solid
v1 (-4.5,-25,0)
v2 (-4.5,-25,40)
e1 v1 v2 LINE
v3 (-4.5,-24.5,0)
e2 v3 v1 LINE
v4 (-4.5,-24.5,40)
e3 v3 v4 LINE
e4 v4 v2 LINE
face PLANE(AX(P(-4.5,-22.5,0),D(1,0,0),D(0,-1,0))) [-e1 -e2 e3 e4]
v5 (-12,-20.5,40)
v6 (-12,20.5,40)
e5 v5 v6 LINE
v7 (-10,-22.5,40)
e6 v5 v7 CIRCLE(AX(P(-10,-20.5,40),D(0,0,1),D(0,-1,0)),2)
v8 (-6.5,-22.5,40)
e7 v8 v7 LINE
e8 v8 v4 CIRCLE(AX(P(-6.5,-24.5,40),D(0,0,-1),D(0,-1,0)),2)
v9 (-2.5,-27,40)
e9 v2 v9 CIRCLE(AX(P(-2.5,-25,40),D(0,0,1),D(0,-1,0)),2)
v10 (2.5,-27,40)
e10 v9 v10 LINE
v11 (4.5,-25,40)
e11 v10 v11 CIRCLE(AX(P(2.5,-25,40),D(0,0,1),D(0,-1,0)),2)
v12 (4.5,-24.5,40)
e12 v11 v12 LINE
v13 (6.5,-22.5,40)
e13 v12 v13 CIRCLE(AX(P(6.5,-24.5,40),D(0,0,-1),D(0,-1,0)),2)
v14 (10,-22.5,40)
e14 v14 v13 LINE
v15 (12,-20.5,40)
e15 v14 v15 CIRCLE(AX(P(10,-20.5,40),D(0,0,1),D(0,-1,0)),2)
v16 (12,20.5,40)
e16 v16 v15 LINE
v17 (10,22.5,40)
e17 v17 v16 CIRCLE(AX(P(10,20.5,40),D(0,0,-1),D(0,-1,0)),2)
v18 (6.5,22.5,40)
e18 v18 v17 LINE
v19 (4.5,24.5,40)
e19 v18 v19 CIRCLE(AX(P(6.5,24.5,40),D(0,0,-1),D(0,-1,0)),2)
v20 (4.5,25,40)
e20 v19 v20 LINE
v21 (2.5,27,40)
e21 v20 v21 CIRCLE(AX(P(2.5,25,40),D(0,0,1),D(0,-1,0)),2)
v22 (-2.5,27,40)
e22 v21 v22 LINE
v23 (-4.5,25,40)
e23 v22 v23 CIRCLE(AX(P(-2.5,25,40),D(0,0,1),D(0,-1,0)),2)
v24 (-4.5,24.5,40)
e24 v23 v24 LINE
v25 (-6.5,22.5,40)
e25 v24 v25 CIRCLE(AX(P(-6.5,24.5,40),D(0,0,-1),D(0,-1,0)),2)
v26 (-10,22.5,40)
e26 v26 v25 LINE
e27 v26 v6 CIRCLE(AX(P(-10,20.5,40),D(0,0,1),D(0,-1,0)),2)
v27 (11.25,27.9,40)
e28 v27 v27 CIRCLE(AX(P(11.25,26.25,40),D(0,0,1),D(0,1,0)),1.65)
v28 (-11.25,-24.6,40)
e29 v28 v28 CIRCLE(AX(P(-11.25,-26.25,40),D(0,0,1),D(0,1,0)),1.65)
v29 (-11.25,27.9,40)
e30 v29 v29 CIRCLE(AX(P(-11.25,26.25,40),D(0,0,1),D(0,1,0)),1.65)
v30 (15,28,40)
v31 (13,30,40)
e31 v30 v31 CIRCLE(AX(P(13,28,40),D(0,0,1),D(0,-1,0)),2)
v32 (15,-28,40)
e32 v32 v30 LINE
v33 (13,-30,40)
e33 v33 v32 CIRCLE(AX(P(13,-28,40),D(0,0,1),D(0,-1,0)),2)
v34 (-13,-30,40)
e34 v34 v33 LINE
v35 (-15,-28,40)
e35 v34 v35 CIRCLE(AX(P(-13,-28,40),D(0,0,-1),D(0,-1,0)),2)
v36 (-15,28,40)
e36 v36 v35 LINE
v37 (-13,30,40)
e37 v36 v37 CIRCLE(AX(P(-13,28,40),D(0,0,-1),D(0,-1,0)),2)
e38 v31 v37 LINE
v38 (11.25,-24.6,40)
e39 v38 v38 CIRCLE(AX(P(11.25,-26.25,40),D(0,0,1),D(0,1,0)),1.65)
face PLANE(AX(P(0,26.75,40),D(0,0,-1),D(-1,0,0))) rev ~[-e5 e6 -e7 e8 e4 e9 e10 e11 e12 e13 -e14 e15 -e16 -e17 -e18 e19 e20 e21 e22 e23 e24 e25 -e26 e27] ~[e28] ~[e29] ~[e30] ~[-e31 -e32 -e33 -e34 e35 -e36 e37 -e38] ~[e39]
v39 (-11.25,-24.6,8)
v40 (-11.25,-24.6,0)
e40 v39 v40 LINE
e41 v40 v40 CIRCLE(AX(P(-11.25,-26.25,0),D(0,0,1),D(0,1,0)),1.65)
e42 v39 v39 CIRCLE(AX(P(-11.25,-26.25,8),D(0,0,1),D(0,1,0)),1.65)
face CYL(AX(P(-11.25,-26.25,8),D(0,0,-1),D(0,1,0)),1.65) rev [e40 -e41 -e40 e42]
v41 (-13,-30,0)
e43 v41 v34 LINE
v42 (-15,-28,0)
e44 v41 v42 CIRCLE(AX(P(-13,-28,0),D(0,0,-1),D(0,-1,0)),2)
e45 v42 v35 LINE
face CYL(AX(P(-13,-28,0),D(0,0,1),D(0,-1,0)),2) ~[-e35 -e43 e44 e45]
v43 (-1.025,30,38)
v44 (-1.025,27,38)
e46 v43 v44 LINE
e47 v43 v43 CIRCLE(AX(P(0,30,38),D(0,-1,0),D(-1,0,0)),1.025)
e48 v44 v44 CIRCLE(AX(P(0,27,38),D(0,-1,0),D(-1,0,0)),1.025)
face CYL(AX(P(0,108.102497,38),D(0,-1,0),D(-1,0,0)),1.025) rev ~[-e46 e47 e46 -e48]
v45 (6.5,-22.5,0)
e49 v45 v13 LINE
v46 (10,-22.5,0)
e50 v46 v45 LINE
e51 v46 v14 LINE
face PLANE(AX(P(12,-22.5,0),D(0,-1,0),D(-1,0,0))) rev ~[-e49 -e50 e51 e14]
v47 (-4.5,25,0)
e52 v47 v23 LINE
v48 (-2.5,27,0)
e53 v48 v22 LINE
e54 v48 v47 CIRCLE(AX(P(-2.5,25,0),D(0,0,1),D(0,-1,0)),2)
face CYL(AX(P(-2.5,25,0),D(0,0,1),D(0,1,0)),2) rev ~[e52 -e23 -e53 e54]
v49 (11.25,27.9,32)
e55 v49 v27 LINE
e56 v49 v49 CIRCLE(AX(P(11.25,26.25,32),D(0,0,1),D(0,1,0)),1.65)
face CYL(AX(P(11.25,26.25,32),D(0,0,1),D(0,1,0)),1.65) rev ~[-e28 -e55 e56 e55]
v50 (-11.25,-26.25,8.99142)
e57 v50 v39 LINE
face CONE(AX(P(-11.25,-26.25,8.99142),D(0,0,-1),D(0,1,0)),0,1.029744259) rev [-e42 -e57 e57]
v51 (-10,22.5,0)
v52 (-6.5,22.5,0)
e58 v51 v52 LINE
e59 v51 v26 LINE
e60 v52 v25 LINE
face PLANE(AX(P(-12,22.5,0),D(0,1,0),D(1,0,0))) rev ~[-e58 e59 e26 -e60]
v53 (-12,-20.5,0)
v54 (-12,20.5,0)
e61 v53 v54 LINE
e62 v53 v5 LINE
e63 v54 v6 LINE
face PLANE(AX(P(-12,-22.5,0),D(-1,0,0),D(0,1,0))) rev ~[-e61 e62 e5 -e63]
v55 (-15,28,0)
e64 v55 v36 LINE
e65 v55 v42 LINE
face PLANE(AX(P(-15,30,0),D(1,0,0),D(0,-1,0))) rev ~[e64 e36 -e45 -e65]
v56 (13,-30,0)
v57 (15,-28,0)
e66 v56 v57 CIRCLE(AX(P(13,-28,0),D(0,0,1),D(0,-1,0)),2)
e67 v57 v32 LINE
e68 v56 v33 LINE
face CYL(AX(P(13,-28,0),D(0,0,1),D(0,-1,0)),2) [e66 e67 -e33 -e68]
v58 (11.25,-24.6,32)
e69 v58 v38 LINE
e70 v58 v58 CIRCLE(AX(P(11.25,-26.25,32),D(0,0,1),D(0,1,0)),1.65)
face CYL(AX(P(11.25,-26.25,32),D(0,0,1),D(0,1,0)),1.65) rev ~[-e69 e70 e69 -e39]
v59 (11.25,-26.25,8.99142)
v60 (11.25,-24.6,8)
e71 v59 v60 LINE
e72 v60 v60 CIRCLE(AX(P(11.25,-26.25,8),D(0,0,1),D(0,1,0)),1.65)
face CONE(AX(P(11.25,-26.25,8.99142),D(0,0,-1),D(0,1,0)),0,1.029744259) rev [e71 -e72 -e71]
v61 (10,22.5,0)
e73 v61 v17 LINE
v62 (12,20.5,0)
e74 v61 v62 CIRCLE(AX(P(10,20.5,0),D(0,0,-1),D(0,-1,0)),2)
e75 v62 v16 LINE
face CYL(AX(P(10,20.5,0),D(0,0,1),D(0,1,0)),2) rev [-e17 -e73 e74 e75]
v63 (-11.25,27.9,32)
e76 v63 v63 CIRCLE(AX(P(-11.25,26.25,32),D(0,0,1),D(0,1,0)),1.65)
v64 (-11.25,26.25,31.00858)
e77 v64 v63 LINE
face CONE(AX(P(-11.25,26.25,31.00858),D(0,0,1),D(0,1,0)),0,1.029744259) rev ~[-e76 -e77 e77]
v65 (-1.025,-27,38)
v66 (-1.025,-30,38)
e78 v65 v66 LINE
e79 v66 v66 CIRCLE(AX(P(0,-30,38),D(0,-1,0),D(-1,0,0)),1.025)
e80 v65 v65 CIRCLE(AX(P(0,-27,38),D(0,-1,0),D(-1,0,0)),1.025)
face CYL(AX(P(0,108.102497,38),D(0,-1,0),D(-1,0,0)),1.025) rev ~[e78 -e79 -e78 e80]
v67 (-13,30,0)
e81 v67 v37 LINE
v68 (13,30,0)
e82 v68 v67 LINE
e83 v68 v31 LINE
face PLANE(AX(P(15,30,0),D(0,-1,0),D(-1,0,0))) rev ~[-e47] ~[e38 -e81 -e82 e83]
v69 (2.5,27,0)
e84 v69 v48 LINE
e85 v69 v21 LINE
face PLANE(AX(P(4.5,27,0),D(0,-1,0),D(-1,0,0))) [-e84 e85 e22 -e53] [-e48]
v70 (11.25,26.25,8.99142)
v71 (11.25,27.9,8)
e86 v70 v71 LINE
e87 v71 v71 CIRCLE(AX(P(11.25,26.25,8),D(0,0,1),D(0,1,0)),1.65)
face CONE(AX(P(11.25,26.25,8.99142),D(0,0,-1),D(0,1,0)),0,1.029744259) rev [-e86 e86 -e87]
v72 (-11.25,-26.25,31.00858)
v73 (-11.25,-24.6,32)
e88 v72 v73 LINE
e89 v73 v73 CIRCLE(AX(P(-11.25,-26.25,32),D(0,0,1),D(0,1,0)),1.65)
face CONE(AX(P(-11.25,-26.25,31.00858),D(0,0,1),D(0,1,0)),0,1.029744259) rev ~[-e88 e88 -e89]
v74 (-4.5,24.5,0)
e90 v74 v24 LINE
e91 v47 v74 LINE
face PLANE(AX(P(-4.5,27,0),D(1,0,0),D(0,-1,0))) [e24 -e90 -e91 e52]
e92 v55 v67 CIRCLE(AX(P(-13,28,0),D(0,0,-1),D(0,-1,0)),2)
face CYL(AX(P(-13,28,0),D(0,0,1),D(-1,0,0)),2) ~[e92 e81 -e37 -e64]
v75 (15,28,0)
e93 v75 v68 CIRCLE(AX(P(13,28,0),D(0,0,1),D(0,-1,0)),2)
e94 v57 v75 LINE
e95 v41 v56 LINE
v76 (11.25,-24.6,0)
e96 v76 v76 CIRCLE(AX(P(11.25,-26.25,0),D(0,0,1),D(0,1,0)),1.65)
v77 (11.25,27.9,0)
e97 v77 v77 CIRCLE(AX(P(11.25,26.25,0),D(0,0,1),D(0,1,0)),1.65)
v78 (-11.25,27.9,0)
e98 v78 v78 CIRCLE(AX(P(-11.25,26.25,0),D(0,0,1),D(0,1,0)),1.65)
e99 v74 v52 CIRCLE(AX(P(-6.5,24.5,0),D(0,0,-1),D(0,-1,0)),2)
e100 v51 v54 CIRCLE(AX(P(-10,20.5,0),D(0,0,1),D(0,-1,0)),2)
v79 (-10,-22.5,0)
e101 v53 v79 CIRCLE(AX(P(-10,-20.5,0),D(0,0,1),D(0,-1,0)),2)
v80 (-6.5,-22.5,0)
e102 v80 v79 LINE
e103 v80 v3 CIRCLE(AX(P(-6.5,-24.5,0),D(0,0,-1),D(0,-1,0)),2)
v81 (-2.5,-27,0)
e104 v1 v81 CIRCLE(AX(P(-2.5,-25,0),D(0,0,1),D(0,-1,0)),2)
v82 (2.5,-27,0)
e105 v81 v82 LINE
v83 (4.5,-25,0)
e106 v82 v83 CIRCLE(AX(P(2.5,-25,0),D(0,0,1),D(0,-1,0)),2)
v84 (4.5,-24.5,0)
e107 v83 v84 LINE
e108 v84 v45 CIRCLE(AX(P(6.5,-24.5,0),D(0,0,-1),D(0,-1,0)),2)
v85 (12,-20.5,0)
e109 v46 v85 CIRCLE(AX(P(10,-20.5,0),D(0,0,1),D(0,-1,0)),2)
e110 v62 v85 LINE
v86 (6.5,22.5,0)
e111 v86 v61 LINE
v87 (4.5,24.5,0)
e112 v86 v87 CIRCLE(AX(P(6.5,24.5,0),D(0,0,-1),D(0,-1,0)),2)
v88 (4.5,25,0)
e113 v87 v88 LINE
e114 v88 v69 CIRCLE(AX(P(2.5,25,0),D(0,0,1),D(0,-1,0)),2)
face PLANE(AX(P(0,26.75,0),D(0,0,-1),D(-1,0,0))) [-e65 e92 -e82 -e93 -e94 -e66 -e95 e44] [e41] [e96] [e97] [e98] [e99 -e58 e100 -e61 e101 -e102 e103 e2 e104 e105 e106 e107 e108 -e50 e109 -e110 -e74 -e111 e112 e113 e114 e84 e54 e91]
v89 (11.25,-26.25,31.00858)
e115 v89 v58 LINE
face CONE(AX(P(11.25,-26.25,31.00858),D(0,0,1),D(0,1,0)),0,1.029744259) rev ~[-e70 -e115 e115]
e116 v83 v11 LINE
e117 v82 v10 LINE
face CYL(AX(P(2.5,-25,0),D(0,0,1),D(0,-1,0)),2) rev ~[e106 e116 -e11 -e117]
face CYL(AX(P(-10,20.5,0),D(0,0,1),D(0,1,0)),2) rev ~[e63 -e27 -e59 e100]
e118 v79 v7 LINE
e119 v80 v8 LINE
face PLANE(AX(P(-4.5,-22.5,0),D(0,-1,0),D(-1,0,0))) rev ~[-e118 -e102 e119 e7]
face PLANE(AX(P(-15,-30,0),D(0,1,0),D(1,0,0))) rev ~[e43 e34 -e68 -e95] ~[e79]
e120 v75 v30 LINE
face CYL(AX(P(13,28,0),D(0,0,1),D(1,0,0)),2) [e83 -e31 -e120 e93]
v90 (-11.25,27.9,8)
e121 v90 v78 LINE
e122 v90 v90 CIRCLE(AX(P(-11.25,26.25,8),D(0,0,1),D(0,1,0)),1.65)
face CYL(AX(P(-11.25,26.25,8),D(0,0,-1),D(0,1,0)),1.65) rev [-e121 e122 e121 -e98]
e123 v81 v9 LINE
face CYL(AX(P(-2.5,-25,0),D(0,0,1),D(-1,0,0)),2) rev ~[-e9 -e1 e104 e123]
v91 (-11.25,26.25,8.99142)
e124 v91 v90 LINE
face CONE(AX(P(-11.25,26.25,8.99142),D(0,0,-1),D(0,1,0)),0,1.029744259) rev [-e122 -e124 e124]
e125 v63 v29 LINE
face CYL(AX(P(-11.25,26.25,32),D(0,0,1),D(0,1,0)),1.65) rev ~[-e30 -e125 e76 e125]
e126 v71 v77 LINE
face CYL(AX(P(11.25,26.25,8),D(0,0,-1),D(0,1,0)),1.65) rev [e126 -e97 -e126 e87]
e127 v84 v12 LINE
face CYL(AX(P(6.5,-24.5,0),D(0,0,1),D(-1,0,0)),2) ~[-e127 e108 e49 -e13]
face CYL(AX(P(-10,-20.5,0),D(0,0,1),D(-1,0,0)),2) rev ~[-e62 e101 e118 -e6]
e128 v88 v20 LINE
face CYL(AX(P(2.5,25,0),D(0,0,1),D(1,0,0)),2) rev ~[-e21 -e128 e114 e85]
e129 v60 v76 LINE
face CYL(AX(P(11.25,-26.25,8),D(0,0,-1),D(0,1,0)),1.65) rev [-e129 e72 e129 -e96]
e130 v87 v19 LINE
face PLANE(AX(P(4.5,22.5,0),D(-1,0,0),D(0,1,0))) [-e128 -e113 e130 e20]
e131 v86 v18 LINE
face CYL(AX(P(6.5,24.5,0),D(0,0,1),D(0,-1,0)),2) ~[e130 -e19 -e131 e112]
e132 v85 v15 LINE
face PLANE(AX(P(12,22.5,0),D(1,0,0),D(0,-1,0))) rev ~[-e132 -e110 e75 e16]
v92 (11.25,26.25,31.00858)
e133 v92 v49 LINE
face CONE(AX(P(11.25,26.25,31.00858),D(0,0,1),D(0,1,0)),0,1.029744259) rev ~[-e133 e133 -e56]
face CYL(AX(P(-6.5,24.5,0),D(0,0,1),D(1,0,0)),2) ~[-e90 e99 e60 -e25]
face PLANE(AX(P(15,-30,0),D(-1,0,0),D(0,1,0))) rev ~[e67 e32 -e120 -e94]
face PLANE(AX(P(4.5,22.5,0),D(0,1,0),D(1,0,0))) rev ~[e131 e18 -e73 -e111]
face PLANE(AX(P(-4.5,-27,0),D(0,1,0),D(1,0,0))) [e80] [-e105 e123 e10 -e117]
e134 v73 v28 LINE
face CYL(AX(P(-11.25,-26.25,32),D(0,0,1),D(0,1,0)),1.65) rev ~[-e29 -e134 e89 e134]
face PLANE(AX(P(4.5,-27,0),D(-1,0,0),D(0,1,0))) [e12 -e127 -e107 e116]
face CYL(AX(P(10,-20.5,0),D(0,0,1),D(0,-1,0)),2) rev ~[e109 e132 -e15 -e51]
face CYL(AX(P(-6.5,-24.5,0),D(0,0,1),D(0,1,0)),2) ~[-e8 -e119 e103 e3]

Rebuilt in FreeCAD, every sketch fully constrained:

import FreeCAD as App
import Part
import Sketcher
Q = App.Units.Quantity


def edges_at(feature, points):
    """Names of the edges that pass closest to the given points."""
    edges = feature.Shape.Edges
    near = lambda p: min(range(len(edges)), key=lambda i: edges[i].distToShape(Part.Vertex(*p))[0])
    return sorted({f"Edge{near(p) + 1}" for p in points})


def add_polygon(sketch, points):
    """Adds a closed chain of lines whose ends are joined by coincident constraints."""
    first, n = sketch.GeometryCount, len(points)
    for a, b in zip(points, points[1:] + points[:1]):
        sketch.addGeometry(Part.LineSegment(App.Vector(*a, 0), App.Vector(*b, 0)), False)
    for i in range(n):
        sketch.addConstraint(Sketcher.Constraint("Coincident", first + i, 2, first + (i + 1) % n, 1))

doc = App.newDocument("Part")
body = doc.addObject("PartDesign::Body", "Body")

sketch1 = body.newObject("Sketcher::SketchObject", "Sketch")
sketch1.AttachmentSupport = (doc.getObject("XY_Plane"), [""])
sketch1.MapMode = "FlatFace"
add_polygon(sketch1, [(-15, -30), (15, -30), (15, 30), (-15, 30)])
add_polygon(sketch1, [(4.5, 22.5), (12, 22.5), (12, -22.5), (4.5, -22.5), (4.5, -27), (-4.5, -27), (-4.5, -22.5), (-12, -22.5), (-12, 22.5), (-4.5, 22.5), (-4.5, 27), (4.5, 27)])
sketch1.addConstraint(Sketcher.Constraint("Horizontal", 0))
sketch1.addConstraint(Sketcher.Constraint("Vertical", 1))
sketch1.addConstraint(Sketcher.Constraint("Horizontal", 2))
sketch1.addConstraint(Sketcher.Constraint("Vertical", 3))
sketch1.addConstraint(Sketcher.Constraint("Horizontal", 4))
sketch1.addConstraint(Sketcher.Constraint("Vertical", 5))
sketch1.addConstraint(Sketcher.Constraint("Horizontal", 6))
sketch1.addConstraint(Sketcher.Constraint("Vertical", 7))
sketch1.addConstraint(Sketcher.Constraint("Horizontal", 8))
sketch1.addConstraint(Sketcher.Constraint("Vertical", 9))
sketch1.addConstraint(Sketcher.Constraint("Horizontal", 10))
sketch1.addConstraint(Sketcher.Constraint("Vertical", 11))
sketch1.addConstraint(Sketcher.Constraint("Horizontal", 12))
sketch1.addConstraint(Sketcher.Constraint("Vertical", 13))
sketch1.addConstraint(Sketcher.Constraint("Horizontal", 14))
sketch1.addConstraint(Sketcher.Constraint("Vertical", 15))
sketch1.addConstraint(Sketcher.Constraint("Symmetric", 0, 2, 2, 2, -1, 1))
sketch1.addConstraint(Sketcher.Constraint("Symmetric", 4, 2, 10, 2, -1, 1))
sketch1.addConstraint(Sketcher.Constraint("Symmetric", 6, 2, 12, 2, -1, 1))
sketch1.addConstraint(Sketcher.Constraint("Symmetric", 8, 2, 14, 2, -1, 1))
sketch1.addConstraint(Sketcher.Constraint("Symmetric", 6, 2, 9, 2, -2))
sketch1.addConstraint(Sketcher.Constraint("DistanceX", 0, 1, 0, 2, 30.0))
sketch1.addConstraint(Sketcher.Constraint("DistanceX", 8, 2, 8, 1, 9.0))
sketch1.addConstraint(Sketcher.Constraint("DistanceY", 1, 1, 1, 2, 60.0))
sketch1.addConstraint(Sketcher.Constraint("DistanceY", 5, 2, 5, 1, 45.0))
sketch1.addConstraint(Sketcher.Constraint("DistanceX", 4, 1, 4, 2, 7.5))
sketch1.addConstraint(Sketcher.Constraint("DistanceY", 7, 2, 7, 1, 4.5))
pad1 = body.newObject("PartDesign::Pad", "Pad")
pad1.Profile = sketch1
pad1.Length = 40
doc.recompute()

fillet = body.newObject("PartDesign::Fillet", "Fillet")
fillet.Base = (pad1, edges_at(pad1, [
    (12, -22.5, 20),
    (12, 22.5, 20),
    (4.5, 22.5, 20),
    (4.5, 27, 20),
    (-4.5, 27, 20),
    (-4.5, 22.5, 20),
    (-12, 22.5, 20),
    (-12, -22.5, 20),
    (-4.5, -22.5, 20),
    (-4.5, -27, 20),
    (4.5, -27, 20),
    (4.5, -22.5, 20),
]))
fillet.Radius = 2

sketch2 = body.newObject("Sketcher::SketchObject", "Sketch001")
sketch2.AttachmentSupport = (doc.getObject("XZ_Plane"), [""])
sketch2.MapMode = "FlatFace"
sketch2.AttachmentOffset = App.Placement(App.Vector(0, 0, -30), App.Rotation())
sketch2.addGeometry(Part.Circle(App.Vector(0, 38, 0), App.Vector(0, 0, 1), 1), False)
sketch2.addConstraint(Sketcher.Constraint("PointOnObject", 0, 3, -2))
sketch2.addConstraint(Sketcher.Constraint("Diameter", 0, 2.05))
sketch2.addConstraint(Sketcher.Constraint("DistanceY", -1, 1, 0, 3, 38.0))
doc.recompute()
hole = body.newObject("PartDesign::Hole", "Hole")
hole.Profile = sketch2
hole.ThreadType = "None"
hole.Diameter = 2.05
hole.DepthType = "ThroughAll"
hole.Reversed = True

sketch3 = body.newObject("Sketcher::SketchObject", "Sketch002")
sketch3.AttachmentSupport = (doc.getObject("YZ_Plane"), [""])
sketch3.MapMode = "FlatFace"
sketch3.AttachmentOffset = App.Placement(App.Vector(0, 0, 11.25), App.Rotation())
add_polygon(sketch3, [(26.2, 9), (26.2, 0), (27.9, 0), (27.9, 8)])
sketch3.addGeometry(Part.LineSegment(App.Vector(26.2, 0, 0), App.Vector(26.2, 9, 0)), True)
sketch3.addConstraint(Sketcher.Constraint("Vertical", 0))
sketch3.addConstraint(Sketcher.Constraint("Horizontal", 1))
sketch3.addConstraint(Sketcher.Constraint("Vertical", 2))
sketch3.addConstraint(Sketcher.Constraint("Vertical", 4))
sketch3.addConstraint(Sketcher.Constraint("Coincident", 4, 1, 0, 2))
sketch3.addConstraint(Sketcher.Constraint("PointOnObject", 0, 2, -1))
sketch3.addConstraint(Sketcher.Constraint("Equal", 0, 4))
sketch3.addConstraint(Sketcher.Constraint("DistanceY", 2, 1, 2, 2, 8.0))
sketch3.addConstraint(Sketcher.Constraint("Angle", 3, Q("149 deg")))
sketch3.addConstraint(Sketcher.Constraint("DistanceX", 1, 1, 1, 2, 1.65))
sketch3.addConstraint(Sketcher.Constraint("DistanceX", -1, 1, 1, 2, 27.9))
groove = body.newObject("PartDesign::Groove", "Groove")
groove.Profile = sketch3
groove.ReferenceAxis = (sketch3, ["Axis0"])
groove.Angle = 360
doc.recompute()

linearpattern = body.newObject("PartDesign::LinearPattern", "LinearPattern")
linearpattern.Originals = [groove]
linearpattern.Direction = (doc.getObject("X_Axis"), [""])
linearpattern.Mode = "offset"
linearpattern.Offset = 22.5
linearpattern.Occurrences = 2
linearpattern.Reversed = True
body.Tip = linearpattern
doc.recompute()

datumline = body.newObject("PartDesign::Line", "DatumLine")
datumline.Placement = App.Placement(App.Vector(0, 0, 0), App.Rotation(App.Vector(0, 0, 1), App.Vector(-0.393919299, -0.91914503, 0)))
linearpattern2 = body.newObject("PartDesign::LinearPattern", "LinearPattern001")
linearpattern2.Originals = [groove]
linearpattern2.Direction = (datumline, [""])
linearpattern2.Mode = "offset"
linearpattern2.Offset = 57.118298
linearpattern2.Occurrences = 2
body.Tip = linearpattern2
doc.recompute()

linearpattern3 = body.newObject("PartDesign::LinearPattern", "LinearPattern002")
linearpattern3.Originals = [groove]
linearpattern3.Direction = (doc.getObject("Y_Axis"), [""])
linearpattern3.Mode = "offset"
linearpattern3.Offset = 52.5
linearpattern3.Occurrences = 2
linearpattern3.Reversed = True
body.Tip = linearpattern3
doc.recompute()

datumplane = body.newObject("PartDesign::Plane", "DatumPlane")
datumplane.AttachmentSupport = (doc.getObject("XY_Plane"), [""])
datumplane.MapMode = "FlatFace"
datumplane.AttachmentOffset = App.Placement(App.Vector(0, 0, 20), App.Rotation())
mirrored = body.newObject("PartDesign::Mirrored", "Mirrored")
mirrored.Originals = [groove]
mirrored.MirrorPlane = (datumplane, [""])
body.Tip = mirrored

sketch4 = body.newObject("Sketcher::SketchObject", "Sketch003")
sketch4.AttachmentSupport = (doc.getObject("YZ_Plane"), [""])
sketch4.MapMode = "FlatFace"
sketch4.AttachmentOffset = App.Placement(App.Vector(0, 0, -11.25), App.Rotation())
add_polygon(sketch4, [(26.2, 40), (26.2, 31), (27.9, 32), (27.9, 40)])
sketch4.addGeometry(Part.LineSegment(App.Vector(26.2, 31, 0), App.Vector(26.2, 40, 0)), True)
sketch4.addConstraint(Sketcher.Constraint("Vertical", 0))
sketch4.addConstraint(Sketcher.Constraint("Vertical", 2))
sketch4.addConstraint(Sketcher.Constraint("Horizontal", 3))
sketch4.addConstraint(Sketcher.Constraint("Vertical", 4))
sketch4.addConstraint(Sketcher.Constraint("Coincident", 4, 1, 0, 2))
sketch4.addConstraint(Sketcher.Constraint("Horizontal", 2, 2, 4, 2))
sketch4.addConstraint(Sketcher.Constraint("DistanceY", 2, 1, 2, 2, 8.0))
sketch4.addConstraint(Sketcher.Constraint("Angle", 1, Q("31 deg")))
sketch4.addConstraint(Sketcher.Constraint("DistanceY", -1, 1, 1, 2, 32.0))
sketch4.addConstraint(Sketcher.Constraint("DistanceX", 3, 2, 3, 1, 1.65))
sketch4.addConstraint(Sketcher.Constraint("DistanceX", -1, 1, 1, 2, 27.9))
groove2 = body.newObject("PartDesign::Groove", "Groove001")
groove2.Profile = sketch4
groove2.ReferenceAxis = (sketch4, ["Axis0"])
groove2.Angle = 360

sketch5 = body.newObject("Sketcher::SketchObject", "Sketch004")
sketch5.AttachmentSupport = (doc.getObject("YZ_Plane"), [""])
sketch5.MapMode = "FlatFace"
sketch5.AttachmentOffset = App.Placement(App.Vector(0, 0, -11.25), App.Rotation())
add_polygon(sketch5, [(-26.2, 40), (-26.2, 31), (-24.6, 32), (-24.6, 40)])
sketch5.addGeometry(Part.LineSegment(App.Vector(-26.2, 31, 0), App.Vector(-26.2, 40, 0)), True)
sketch5.addConstraint(Sketcher.Constraint("Vertical", 0))
sketch5.addConstraint(Sketcher.Constraint("Vertical", 2))
sketch5.addConstraint(Sketcher.Constraint("Horizontal", 3))
sketch5.addConstraint(Sketcher.Constraint("Vertical", 4))
sketch5.addConstraint(Sketcher.Constraint("Coincident", 4, 1, 0, 2))
sketch5.addConstraint(Sketcher.Constraint("Horizontal", 2, 2, 4, 2))
sketch5.addConstraint(Sketcher.Constraint("DistanceY", 2, 1, 2, 2, 8.0))
sketch5.addConstraint(Sketcher.Constraint("Angle", 1, Q("31 deg")))
sketch5.addConstraint(Sketcher.Constraint("DistanceY", -1, 1, 1, 2, 32.0))
sketch5.addConstraint(Sketcher.Constraint("DistanceX", 3, 2, 3, 1, 1.65))
sketch5.addConstraint(Sketcher.Constraint("DistanceX", 1, 2, -1, 1, 24.6))
groove3 = body.newObject("PartDesign::Groove", "Groove002")
groove3.Profile = sketch5
groove3.ReferenceAxis = (sketch5, ["Axis0"])
groove3.Angle = 360

sketch6 = body.newObject("Sketcher::SketchObject", "Sketch005")
sketch6.AttachmentSupport = (doc.getObject("YZ_Plane"), [""])
sketch6.MapMode = "FlatFace"
sketch6.AttachmentOffset = App.Placement(App.Vector(0, 0, 11.25), App.Rotation())
add_polygon(sketch6, [(-26.2, 40), (-26.2, 31), (-24.6, 32), (-24.6, 40)])
sketch6.addGeometry(Part.LineSegment(App.Vector(-26.2, 31, 0), App.Vector(-26.2, 40, 0)), True)
sketch6.addConstraint(Sketcher.Constraint("Vertical", 0))
sketch6.addConstraint(Sketcher.Constraint("Vertical", 2))
sketch6.addConstraint(Sketcher.Constraint("Horizontal", 3))
sketch6.addConstraint(Sketcher.Constraint("Vertical", 4))
sketch6.addConstraint(Sketcher.Constraint("Coincident", 4, 1, 0, 2))
sketch6.addConstraint(Sketcher.Constraint("Horizontal", 2, 2, 4, 2))
sketch6.addConstraint(Sketcher.Constraint("DistanceY", 2, 1, 2, 2, 8.0))
sketch6.addConstraint(Sketcher.Constraint("Angle", 1, Q("31 deg")))
sketch6.addConstraint(Sketcher.Constraint("DistanceY", -1, 1, 1, 2, 32.0))
sketch6.addConstraint(Sketcher.Constraint("DistanceX", 3, 2, 3, 1, 1.65))
sketch6.addConstraint(Sketcher.Constraint("DistanceX", 1, 2, -1, 1, 24.6))
groove4 = body.newObject("PartDesign::Groove", "Groove003")
groove4.Profile = sketch6
groove4.ReferenceAxis = (sketch6, ["Axis0"])
groove4.Angle = 360
doc.recompute()

fillet2 = body.newObject("PartDesign::Fillet", "Fillet001")
fillet2.Base = (groove4, edges_at(groove4, [
    (-15, -30, 20),
    (-15, 30, 20),
    (15, 30, 20),
    (15, -30, 20),
]))
fillet2.Radius = 2

doc.recompute()
